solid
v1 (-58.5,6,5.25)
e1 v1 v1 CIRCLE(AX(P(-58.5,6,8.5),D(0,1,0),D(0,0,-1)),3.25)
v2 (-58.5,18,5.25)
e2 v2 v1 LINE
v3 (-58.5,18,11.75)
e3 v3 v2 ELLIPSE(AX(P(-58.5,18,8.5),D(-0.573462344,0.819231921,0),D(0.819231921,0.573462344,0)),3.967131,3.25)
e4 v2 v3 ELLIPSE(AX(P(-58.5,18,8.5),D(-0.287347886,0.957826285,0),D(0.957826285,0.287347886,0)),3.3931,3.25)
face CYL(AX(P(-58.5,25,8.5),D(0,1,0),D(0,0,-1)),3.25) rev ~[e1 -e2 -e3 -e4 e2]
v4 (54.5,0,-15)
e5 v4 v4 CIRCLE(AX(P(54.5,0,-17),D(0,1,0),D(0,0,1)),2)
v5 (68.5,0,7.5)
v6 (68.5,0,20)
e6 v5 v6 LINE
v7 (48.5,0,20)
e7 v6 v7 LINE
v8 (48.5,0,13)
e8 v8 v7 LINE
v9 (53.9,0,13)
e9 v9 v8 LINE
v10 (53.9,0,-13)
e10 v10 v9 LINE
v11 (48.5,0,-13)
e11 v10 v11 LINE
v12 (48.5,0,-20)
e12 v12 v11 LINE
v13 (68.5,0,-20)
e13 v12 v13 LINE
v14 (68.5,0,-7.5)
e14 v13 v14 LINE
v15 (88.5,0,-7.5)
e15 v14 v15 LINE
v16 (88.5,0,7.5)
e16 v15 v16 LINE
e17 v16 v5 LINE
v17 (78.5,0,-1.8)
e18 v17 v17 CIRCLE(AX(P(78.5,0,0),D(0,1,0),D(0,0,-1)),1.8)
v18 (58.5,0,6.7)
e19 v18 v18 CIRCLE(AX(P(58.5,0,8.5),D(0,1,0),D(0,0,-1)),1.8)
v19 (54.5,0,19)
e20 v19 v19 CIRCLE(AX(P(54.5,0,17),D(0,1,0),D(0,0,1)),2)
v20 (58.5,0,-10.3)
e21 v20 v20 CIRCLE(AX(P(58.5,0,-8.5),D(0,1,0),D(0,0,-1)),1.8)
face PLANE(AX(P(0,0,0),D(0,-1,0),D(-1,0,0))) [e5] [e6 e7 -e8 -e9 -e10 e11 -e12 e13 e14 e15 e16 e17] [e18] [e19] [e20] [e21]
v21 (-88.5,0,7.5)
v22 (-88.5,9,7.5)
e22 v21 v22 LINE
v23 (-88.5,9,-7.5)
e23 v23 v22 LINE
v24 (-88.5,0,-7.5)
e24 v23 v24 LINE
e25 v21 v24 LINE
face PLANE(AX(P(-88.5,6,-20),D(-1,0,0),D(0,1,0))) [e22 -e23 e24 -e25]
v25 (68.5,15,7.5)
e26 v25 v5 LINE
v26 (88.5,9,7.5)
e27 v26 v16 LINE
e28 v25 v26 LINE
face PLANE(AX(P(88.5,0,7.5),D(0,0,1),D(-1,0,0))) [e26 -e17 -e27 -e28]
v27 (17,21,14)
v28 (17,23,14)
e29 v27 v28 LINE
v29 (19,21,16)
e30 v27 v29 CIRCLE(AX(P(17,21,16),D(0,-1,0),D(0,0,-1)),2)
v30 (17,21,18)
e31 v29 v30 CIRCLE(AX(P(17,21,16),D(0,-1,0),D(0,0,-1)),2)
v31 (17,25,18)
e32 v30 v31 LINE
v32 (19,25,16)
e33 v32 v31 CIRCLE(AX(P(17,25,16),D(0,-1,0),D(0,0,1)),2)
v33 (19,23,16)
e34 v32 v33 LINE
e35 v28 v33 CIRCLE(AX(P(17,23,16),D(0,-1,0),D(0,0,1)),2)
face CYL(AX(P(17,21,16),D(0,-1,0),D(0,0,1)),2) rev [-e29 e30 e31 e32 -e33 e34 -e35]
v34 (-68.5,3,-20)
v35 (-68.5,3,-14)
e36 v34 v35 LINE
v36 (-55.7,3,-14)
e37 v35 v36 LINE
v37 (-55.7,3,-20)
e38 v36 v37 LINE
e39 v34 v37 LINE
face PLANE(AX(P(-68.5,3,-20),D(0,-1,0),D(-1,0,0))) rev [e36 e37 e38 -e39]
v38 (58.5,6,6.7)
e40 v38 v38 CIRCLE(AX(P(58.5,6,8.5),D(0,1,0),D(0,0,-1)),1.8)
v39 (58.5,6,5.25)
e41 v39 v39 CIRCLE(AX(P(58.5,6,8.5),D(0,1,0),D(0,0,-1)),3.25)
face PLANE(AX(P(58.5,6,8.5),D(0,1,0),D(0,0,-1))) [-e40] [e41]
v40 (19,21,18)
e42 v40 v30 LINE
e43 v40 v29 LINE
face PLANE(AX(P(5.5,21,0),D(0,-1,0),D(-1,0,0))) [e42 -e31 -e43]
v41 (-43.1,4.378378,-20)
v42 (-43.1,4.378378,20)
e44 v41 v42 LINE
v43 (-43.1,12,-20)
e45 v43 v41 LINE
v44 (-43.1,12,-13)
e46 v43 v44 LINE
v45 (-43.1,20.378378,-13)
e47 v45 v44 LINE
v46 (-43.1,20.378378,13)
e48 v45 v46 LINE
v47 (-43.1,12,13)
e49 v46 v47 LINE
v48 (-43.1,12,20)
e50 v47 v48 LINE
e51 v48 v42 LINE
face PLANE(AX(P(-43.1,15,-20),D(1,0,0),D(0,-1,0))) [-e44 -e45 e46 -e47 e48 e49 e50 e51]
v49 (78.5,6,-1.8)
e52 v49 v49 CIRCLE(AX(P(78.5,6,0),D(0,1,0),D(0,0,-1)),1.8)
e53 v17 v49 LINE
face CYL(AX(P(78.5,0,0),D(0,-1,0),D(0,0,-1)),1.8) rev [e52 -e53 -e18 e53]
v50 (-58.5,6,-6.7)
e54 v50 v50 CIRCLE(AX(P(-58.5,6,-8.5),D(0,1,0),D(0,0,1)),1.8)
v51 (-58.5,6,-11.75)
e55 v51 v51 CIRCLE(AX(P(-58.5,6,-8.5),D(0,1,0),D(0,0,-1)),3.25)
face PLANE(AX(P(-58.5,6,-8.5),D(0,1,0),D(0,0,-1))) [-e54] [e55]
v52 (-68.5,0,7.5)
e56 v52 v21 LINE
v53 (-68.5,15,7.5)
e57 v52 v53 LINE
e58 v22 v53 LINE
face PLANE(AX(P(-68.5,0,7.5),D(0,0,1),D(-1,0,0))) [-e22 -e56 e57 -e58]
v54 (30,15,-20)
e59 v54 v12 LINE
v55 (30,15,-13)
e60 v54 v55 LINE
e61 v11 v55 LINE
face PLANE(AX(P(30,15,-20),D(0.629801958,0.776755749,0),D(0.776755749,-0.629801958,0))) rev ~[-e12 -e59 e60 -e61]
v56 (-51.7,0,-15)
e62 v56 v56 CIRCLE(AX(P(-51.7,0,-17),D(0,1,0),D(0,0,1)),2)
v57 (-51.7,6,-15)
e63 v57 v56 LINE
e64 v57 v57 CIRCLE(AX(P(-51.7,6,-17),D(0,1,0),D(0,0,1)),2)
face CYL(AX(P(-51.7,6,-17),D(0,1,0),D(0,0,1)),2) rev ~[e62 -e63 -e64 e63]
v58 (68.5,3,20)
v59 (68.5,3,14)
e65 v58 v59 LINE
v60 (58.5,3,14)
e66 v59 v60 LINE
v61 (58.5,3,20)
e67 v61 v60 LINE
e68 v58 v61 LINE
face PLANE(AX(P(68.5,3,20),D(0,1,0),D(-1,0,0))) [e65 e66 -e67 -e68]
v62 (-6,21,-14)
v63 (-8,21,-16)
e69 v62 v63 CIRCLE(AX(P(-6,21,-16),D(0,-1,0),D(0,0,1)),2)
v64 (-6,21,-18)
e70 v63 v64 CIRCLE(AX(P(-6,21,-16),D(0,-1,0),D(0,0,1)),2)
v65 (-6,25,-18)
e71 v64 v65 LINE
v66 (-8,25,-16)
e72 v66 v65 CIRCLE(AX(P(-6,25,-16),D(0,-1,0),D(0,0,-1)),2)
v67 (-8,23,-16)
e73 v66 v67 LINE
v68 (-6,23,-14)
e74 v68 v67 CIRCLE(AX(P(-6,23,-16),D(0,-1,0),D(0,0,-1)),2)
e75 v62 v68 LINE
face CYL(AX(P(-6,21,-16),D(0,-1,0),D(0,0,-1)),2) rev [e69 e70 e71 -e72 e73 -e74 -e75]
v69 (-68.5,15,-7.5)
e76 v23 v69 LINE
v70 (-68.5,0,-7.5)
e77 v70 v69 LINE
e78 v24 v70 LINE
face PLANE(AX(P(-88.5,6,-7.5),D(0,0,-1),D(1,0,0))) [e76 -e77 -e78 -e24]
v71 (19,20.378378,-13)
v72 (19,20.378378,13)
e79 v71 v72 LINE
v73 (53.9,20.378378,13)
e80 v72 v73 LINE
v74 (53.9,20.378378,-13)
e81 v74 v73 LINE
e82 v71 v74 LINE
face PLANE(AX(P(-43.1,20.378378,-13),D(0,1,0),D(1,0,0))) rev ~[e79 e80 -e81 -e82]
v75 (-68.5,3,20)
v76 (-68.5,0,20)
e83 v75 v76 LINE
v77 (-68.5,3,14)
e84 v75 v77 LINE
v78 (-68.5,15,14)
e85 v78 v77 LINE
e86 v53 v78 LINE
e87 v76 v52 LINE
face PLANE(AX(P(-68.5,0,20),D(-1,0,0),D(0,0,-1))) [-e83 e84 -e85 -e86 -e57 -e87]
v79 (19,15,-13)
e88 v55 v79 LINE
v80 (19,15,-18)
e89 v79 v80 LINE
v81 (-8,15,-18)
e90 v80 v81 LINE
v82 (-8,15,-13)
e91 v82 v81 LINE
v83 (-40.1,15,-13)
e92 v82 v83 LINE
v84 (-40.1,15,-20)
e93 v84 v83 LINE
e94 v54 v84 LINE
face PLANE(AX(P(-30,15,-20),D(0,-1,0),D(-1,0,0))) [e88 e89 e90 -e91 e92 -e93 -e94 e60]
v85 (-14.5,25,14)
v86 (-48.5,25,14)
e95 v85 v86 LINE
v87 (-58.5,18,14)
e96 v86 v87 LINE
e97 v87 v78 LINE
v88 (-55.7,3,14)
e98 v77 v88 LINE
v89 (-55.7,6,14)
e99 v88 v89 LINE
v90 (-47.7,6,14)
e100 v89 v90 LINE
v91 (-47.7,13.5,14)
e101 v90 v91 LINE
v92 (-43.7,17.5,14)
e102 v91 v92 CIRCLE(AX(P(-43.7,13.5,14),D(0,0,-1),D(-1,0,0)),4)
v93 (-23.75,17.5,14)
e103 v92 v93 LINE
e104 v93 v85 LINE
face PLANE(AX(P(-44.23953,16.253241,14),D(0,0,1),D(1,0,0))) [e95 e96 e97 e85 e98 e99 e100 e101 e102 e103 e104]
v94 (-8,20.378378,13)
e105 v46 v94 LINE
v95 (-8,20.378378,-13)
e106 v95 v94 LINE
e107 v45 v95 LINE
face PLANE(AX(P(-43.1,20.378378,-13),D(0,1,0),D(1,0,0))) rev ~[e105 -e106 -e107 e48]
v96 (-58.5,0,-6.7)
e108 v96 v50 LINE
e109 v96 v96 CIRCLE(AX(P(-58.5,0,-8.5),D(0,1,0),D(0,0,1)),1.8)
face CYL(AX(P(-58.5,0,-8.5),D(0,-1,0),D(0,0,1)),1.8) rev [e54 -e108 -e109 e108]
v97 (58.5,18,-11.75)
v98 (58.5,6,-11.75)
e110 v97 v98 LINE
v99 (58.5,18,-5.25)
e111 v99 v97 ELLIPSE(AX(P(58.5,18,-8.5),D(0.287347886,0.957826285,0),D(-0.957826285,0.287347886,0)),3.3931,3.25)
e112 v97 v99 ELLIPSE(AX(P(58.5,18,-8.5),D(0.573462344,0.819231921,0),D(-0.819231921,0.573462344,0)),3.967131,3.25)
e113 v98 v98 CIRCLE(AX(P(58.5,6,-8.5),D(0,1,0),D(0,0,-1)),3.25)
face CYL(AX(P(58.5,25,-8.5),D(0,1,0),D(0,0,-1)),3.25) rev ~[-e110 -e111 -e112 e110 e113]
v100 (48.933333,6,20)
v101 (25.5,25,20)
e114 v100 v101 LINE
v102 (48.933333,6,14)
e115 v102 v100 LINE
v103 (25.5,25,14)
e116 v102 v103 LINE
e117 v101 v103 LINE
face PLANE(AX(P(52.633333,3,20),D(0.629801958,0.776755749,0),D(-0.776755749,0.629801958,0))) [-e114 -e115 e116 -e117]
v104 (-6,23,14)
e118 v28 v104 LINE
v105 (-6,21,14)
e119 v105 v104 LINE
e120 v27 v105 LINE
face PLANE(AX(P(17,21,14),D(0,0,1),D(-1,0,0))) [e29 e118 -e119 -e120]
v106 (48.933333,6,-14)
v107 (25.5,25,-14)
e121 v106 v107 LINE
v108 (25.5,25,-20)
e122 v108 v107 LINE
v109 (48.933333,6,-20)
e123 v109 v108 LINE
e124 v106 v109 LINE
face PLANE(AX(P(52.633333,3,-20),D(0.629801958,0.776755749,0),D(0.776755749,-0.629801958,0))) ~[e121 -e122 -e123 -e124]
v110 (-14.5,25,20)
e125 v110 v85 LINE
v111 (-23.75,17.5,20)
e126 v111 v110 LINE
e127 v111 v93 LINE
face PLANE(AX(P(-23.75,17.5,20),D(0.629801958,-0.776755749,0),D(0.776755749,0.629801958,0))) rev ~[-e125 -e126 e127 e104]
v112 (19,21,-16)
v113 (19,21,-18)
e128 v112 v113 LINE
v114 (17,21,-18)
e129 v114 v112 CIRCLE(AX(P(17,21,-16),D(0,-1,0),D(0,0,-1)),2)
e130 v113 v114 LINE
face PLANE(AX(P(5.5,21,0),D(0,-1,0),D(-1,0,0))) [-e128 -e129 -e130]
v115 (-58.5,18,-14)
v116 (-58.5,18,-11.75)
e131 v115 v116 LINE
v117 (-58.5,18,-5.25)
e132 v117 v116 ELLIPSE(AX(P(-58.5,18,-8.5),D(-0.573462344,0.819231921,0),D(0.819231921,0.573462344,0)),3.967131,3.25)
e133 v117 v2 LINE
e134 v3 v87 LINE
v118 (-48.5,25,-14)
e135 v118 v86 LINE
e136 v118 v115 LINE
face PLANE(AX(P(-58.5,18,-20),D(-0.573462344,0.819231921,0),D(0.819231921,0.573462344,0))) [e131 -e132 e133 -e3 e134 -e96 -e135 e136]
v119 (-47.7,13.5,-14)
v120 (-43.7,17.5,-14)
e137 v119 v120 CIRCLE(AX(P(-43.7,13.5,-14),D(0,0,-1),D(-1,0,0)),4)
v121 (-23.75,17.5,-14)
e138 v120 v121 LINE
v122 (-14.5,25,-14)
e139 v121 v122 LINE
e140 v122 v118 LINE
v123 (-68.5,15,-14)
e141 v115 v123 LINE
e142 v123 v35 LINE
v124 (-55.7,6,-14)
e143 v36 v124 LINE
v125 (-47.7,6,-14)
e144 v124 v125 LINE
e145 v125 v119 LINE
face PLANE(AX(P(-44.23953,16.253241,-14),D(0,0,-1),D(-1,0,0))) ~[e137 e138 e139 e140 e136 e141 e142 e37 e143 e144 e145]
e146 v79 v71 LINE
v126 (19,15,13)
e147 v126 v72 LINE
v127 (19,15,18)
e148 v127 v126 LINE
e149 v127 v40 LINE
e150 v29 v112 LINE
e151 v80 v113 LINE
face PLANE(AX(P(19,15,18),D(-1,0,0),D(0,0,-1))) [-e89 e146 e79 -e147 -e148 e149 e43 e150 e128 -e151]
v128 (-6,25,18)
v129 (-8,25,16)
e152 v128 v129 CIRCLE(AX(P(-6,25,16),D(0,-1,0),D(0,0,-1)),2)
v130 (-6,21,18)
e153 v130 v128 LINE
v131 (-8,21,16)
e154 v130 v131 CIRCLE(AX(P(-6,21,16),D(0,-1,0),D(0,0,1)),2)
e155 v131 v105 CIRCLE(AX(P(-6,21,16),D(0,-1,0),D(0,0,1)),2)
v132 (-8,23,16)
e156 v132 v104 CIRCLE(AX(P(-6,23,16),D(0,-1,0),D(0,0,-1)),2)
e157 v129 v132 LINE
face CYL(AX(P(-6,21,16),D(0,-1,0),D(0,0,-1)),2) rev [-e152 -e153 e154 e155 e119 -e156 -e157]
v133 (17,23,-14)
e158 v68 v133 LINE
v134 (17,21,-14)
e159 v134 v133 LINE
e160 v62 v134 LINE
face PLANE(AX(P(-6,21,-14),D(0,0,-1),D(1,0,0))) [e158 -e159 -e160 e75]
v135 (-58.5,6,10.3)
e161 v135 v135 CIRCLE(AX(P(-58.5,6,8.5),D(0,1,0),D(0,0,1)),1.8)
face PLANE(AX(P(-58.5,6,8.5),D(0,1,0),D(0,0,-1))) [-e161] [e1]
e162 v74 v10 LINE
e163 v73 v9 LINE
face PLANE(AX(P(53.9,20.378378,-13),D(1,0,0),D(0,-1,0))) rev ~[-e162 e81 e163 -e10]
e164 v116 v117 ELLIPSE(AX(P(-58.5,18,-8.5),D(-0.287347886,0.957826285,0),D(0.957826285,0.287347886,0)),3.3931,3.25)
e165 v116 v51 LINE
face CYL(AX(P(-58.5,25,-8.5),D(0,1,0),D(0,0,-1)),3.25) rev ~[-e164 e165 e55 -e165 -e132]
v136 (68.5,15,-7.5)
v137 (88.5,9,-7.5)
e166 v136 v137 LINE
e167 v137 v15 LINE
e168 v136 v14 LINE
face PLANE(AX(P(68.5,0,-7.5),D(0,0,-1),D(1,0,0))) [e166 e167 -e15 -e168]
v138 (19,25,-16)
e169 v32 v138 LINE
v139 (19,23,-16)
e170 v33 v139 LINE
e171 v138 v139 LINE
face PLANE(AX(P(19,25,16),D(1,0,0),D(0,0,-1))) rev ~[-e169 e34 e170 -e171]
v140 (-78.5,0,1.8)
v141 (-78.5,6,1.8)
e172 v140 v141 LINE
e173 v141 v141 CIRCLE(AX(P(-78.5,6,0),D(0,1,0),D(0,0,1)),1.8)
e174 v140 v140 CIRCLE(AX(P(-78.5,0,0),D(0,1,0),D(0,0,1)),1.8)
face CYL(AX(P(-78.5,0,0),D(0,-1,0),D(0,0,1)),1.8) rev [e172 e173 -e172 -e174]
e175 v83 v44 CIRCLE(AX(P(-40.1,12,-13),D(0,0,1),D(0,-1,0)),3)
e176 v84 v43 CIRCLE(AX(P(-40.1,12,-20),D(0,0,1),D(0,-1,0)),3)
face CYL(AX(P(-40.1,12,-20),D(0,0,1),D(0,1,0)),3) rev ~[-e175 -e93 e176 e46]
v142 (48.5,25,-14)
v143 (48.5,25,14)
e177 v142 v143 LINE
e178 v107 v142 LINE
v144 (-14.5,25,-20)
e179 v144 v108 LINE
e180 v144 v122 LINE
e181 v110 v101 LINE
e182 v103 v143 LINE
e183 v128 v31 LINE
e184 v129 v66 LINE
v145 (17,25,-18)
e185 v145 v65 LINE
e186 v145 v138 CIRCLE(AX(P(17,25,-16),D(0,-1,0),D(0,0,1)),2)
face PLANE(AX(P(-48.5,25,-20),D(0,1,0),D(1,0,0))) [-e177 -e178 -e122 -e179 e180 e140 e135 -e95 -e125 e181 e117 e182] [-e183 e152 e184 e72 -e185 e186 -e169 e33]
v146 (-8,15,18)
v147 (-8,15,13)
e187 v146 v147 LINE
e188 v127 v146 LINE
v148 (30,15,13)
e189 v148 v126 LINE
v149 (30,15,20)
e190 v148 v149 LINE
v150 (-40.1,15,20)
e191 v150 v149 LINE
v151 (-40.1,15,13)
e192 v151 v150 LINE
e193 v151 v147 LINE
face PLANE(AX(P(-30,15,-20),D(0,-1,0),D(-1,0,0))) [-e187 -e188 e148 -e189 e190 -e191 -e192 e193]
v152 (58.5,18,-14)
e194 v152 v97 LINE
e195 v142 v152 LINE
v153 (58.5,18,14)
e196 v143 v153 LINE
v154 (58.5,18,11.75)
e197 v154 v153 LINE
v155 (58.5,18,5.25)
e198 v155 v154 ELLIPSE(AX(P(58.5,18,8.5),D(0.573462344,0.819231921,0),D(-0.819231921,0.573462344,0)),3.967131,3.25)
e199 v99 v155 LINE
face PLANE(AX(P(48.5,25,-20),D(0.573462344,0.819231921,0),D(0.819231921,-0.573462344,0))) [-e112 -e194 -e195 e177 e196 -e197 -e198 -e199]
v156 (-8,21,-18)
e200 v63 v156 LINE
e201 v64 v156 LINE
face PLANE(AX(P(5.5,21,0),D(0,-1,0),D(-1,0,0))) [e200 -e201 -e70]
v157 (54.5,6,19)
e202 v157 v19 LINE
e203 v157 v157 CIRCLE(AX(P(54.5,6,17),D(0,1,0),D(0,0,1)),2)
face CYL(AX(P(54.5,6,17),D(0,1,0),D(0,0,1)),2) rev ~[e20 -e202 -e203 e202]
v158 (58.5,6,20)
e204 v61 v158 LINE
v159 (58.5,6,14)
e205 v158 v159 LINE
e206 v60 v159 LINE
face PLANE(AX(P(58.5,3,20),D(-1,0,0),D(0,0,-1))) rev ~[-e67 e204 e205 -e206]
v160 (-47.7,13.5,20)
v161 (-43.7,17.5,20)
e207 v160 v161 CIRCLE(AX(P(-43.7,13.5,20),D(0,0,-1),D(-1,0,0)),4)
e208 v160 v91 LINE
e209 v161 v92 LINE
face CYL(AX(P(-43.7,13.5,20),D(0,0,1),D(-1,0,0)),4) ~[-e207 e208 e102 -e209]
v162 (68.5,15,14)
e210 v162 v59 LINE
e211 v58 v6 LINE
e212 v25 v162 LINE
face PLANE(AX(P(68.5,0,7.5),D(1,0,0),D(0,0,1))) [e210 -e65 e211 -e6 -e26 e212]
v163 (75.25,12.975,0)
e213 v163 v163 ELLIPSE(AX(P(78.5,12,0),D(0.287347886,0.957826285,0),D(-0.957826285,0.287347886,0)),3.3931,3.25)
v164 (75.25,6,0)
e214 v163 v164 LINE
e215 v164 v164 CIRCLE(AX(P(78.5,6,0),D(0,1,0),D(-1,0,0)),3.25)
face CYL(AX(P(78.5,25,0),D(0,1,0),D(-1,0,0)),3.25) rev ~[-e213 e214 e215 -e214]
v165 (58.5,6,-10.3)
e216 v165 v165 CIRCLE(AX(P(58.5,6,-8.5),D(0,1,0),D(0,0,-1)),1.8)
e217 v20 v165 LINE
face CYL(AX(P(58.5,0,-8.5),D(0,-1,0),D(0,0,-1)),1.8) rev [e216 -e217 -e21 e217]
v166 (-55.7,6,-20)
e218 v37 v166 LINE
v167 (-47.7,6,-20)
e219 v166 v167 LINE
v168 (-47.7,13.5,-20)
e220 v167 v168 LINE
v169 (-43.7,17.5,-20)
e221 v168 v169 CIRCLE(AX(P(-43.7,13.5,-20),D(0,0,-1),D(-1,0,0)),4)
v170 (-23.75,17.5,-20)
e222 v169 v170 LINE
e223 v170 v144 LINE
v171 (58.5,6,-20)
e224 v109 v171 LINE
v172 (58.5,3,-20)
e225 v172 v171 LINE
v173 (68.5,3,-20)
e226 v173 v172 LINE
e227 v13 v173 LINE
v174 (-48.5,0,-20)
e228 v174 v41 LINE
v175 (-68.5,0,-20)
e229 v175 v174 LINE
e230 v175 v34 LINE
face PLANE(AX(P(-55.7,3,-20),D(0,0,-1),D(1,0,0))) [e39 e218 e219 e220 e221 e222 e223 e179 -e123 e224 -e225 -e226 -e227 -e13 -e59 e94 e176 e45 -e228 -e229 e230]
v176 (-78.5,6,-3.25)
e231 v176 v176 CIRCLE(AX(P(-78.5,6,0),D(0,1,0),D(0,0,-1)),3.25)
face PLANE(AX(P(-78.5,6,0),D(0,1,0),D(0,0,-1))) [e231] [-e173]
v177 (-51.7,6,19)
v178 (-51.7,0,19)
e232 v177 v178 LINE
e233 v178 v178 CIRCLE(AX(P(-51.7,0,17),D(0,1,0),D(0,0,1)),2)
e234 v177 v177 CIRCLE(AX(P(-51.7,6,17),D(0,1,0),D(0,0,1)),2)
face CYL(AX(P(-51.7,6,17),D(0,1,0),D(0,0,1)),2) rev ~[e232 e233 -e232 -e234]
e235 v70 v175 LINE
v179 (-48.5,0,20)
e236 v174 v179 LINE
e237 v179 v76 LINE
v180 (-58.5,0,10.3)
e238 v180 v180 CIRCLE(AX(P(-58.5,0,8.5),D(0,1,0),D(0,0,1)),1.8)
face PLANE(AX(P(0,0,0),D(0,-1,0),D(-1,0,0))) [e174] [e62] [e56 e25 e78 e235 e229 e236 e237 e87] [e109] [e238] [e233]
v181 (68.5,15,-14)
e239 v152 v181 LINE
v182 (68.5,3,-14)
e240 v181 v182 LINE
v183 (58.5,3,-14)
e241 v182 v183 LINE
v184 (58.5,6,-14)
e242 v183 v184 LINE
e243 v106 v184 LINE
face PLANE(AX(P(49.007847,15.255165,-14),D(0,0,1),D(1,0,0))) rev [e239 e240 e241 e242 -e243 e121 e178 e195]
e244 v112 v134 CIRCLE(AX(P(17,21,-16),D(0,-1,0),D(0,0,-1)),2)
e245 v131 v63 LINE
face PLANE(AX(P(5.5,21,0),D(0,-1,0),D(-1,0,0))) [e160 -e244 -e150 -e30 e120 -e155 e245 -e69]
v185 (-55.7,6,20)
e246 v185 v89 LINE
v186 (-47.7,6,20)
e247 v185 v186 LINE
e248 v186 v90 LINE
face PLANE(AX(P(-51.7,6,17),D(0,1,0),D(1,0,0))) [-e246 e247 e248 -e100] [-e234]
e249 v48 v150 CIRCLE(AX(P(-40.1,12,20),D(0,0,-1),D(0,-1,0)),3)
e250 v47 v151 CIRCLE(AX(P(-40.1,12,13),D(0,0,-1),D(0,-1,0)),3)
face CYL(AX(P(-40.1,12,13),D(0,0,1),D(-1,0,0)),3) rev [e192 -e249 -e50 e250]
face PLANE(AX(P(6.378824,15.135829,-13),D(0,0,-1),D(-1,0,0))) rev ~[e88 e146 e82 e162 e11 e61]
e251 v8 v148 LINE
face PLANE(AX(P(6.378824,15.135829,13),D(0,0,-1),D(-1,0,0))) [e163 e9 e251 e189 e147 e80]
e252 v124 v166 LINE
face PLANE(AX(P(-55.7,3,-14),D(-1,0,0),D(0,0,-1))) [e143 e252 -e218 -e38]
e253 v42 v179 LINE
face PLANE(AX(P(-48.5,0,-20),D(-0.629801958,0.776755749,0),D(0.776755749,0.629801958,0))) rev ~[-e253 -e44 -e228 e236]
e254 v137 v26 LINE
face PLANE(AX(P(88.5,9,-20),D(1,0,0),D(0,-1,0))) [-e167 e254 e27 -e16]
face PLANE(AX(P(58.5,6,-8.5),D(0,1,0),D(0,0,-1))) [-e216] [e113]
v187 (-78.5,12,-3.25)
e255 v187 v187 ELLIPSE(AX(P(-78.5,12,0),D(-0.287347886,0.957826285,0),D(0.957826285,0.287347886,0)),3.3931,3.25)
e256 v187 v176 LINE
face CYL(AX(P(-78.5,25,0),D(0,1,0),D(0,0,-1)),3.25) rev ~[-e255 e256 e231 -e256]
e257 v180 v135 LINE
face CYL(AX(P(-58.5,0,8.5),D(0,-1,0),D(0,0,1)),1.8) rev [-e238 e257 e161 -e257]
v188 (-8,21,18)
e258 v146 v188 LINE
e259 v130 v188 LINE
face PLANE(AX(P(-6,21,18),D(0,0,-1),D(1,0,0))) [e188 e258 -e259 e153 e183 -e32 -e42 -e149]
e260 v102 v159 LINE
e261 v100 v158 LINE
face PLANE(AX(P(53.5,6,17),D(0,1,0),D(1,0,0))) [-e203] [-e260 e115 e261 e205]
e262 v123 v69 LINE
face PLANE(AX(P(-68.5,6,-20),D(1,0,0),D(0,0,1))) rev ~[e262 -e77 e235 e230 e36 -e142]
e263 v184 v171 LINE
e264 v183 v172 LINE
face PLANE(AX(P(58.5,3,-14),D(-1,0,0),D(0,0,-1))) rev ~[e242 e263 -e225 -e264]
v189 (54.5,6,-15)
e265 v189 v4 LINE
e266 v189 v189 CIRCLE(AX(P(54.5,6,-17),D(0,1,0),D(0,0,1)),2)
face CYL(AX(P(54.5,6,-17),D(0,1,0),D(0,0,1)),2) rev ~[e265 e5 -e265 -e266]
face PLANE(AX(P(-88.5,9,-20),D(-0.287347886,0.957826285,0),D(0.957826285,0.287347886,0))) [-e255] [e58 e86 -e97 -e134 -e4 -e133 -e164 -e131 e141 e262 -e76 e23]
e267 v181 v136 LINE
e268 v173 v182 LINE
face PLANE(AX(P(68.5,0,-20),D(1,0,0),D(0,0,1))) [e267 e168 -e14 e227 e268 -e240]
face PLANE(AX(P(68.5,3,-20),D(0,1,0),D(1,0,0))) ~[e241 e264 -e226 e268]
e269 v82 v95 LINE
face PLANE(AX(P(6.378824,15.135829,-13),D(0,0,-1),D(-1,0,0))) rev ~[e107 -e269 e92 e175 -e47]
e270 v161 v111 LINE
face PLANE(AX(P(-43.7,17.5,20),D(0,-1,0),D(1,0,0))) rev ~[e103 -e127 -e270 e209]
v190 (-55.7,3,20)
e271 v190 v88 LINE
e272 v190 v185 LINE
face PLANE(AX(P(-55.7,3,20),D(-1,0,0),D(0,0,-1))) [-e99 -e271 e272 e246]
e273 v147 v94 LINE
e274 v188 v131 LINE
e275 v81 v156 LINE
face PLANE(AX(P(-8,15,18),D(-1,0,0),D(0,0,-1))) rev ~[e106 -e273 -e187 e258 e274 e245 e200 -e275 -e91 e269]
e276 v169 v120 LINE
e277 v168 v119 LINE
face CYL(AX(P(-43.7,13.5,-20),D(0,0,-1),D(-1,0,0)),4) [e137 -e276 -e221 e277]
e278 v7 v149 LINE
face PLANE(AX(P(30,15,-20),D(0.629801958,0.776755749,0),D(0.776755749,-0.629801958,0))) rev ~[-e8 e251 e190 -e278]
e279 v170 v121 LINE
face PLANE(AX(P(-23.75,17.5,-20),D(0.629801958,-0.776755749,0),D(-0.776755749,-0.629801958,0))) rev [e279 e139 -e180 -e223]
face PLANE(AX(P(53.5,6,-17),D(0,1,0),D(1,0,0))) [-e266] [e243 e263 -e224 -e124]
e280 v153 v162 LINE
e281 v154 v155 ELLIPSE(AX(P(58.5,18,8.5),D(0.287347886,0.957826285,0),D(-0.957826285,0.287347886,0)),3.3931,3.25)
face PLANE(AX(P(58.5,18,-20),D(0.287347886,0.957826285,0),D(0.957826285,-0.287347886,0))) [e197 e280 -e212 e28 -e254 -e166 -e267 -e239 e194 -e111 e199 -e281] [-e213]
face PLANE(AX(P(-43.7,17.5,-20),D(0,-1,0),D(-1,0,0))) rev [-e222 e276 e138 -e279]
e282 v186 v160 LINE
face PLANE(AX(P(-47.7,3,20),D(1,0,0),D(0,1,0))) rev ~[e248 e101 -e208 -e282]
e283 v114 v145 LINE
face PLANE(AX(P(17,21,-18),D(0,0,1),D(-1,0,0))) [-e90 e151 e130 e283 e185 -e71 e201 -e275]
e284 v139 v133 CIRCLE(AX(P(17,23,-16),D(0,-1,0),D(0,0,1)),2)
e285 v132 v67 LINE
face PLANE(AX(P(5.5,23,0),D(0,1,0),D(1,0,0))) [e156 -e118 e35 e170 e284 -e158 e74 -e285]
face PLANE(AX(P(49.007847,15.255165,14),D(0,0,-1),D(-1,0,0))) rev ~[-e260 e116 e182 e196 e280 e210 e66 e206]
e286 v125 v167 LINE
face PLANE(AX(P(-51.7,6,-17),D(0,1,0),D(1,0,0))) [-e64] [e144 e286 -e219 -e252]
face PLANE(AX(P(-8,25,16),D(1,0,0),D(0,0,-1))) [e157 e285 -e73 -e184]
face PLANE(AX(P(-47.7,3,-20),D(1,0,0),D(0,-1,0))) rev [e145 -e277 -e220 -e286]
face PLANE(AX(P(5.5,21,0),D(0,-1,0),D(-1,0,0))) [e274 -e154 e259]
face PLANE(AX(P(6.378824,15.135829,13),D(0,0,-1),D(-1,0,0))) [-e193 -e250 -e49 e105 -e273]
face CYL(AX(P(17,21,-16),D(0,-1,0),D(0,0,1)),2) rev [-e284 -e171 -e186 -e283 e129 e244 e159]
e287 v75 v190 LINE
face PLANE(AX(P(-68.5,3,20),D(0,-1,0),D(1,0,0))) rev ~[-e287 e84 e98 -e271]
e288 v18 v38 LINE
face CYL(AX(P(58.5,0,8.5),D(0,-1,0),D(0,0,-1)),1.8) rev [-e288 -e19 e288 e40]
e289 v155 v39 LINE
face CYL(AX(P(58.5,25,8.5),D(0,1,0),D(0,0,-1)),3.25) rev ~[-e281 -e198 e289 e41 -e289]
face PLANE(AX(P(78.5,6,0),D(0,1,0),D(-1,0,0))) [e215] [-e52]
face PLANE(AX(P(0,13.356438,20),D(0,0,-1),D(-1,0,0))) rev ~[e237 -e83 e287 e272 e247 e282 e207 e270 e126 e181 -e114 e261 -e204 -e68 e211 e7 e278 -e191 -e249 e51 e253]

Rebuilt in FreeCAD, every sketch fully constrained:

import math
import FreeCAD as App
import Part
import Sketcher
from FreeCAD import Vector


def edges_at(feature, points):
    """Names of the edges that pass closest to the given points."""
    edges = feature.Shape.Edges
    near = lambda p: min(range(len(edges)), key=lambda i: edges[i].distToShape(Part.Vertex(*p))[0])
    return sorted({f"Edge{near(p) + 1}" for p in points})


def add_polygon(sketch, points):
    """Adds a closed chain of lines whose ends are joined by coincident constraints."""
    first, n = sketch.GeometryCount, len(points)
    for a, b in zip(points, points[1:] + points[:1]):
        sketch.addGeometry(Part.LineSegment(App.Vector(*a, 0), App.Vector(*b, 0)), False)
    for i in range(n):
        sketch.addConstraint(Sketcher.Constraint("Coincident", first + i, 2, first + (i + 1) % n, 1))

doc = App.newDocument("Part")
body = doc.addObject("PartDesign::Body", "Body")

# Sketch on XZ plane
sketch1 = doc.addObject("Sketcher::SketchObject", "Sketch")
body.addObject(sketch1)
sketch1.AttachmentSupport = (doc.XZ_Plane, [""])
sketch1.MapMode = "FlatFace"
add_polygon(sketch1, [(68.5, -7.5), (68.5, -20), (-68.5, -20), (-68.5, -7.5), (-88.5, -7.5), (-88.5, 7.5), (-68.5, 7.5), (-68.5, 20), (68.5, 20), (68.5, 7.5), (88.5, 7.5), (88.5, -7.5)])  # lines 0-11
sketch1.addGeometry(Part.Circle(Vector(58.5, 8.5, 0), Vector(0, 0, 1), 1.8), False)  # 12
sketch1.addGeometry(Part.Circle(Vector(-58.5, 8.5, 0), Vector(0, 0, 1), 1.8), False)  # 13
sketch1.addGeometry(Part.Circle(Vector(78.5, 0, 0), Vector(0, 0, 1), 1.8), False)  # 14
sketch1.addGeometry(Part.Circle(Vector(58.5, -8.5, 0), Vector(0, 0, 1), 1.8), False)  # 15
sketch1.addGeometry(Part.Circle(Vector(-78.5, 0, 0), Vector(0, 0, 1), 1.8), False)  # 16
sketch1.addGeometry(Part.Circle(Vector(-58.5, -8.5, 0), Vector(0, 0, 1), 1.8), False)  # 17
sketch1.addConstraint(Sketcher.Constraint("Vertical", 0))
sketch1.addConstraint(Sketcher.Constraint("Horizontal", 1))
sketch1.addConstraint(Sketcher.Constraint("Vertical", 2))
sketch1.addConstraint(Sketcher.Constraint("Horizontal", 3))
sketch1.addConstraint(Sketcher.Constraint("Vertical", 4))
sketch1.addConstraint(Sketcher.Constraint("Horizontal", 5))
sketch1.addConstraint(Sketcher.Constraint("Vertical", 6))
sketch1.addConstraint(Sketcher.Constraint("Horizontal", 7))
sketch1.addConstraint(Sketcher.Constraint("Vertical", 8))
sketch1.addConstraint(Sketcher.Constraint("Horizontal", 9))
sketch1.addConstraint(Sketcher.Constraint("Vertical", 10))
sketch1.addConstraint(Sketcher.Constraint("Horizontal", 11))
sketch1.addConstraint(Sketcher.Constraint("Equal", 12, 13))
sketch1.addConstraint(Sketcher.Constraint("Equal", 13, 14))
sketch1.addConstraint(Sketcher.Constraint("Equal", 14, 15))
sketch1.addConstraint(Sketcher.Constraint("Equal", 15, 16))
sketch1.addConstraint(Sketcher.Constraint("Equal", 16, 17))
sketch1.addConstraint(Sketcher.Constraint("Symmetric", 13, 3, 15, 3, -1, 1))
sketch1.addConstraint(Sketcher.Constraint("Symmetric", 14, 3, 16, 3, -1, 1))
sketch1.addConstraint(Sketcher.Constraint("Symmetric", 12, 3, 17, 3, -1, 1))
sketch1.addConstraint(Sketcher.Constraint("Symmetric", 0, 2, 6, 2, -1, 1))
sketch1.addConstraint(Sketcher.Constraint("Symmetric", 2, 2, 8, 2, -1, 1))
sketch1.addConstraint(Sketcher.Constraint("Symmetric", 4, 2, 10, 2, -1, 1))
sketch1.addConstraint(Sketcher.Constraint("Symmetric", 12, 3, 13, 3, -2))
sketch1.addConstraint(Sketcher.Constraint("Symmetric", 5, 2, 8, 2, -2))
sketch1.addConstraint(Sketcher.Constraint("PointOnObject", 14, 3, -1))
sketch1.addConstraint(Sketcher.Constraint("Diameter", 12, 3.6))
sketch1.addConstraint(Sketcher.Constraint("DistanceX", 1, 2, 1, 1, 137.0))
sketch1.addConstraint(Sketcher.Constraint("DistanceX", 3, 2, 3, 1, 20.0))
sketch1.addConstraint(Sketcher.Constraint("DistanceY", 4, 1, 4, 2, 15.0))
sketch1.addConstraint(Sketcher.Constraint("DistanceY", 0, 2, 0, 1, 12.5))
sketch1.addConstraint(Sketcher.Constraint("DistanceX", 13, 3, 12, 3, 117.0))
sketch1.addConstraint(Sketcher.Constraint("DistanceX", 12, 3, 14, 3, 20.0))
sketch1.addConstraint(Sketcher.Constraint("DistanceY", 15, 3, 12, 3, 17.0))
pad1 = doc.addObject("PartDesign::Pad", "Pad")
body.addObject(pad1)
pad1.Profile = sketch1
pad1.Length = 6
pad1.Reversed = True

# Sketch on XY plane
sketch2 = doc.addObject("Sketcher::SketchObject", "Sketch001")
body.addObject(sketch2)
sketch2.AttachmentSupport = (doc.XY_Plane, [""])
sketch2.MapMode = "FlatFace"
sketch2.AttachmentOffset = App.Placement(Vector(0, 0, -20), App.Rotation())
add_polygon(sketch2, [(88.5, 6), (-88.5, 6), (-88.5, 9), (-58.5, 18), (-48.5, 25), (48.5, 25), (58.5, 18), (88.5, 9)])  # lines 0-7
sketch2.addConstraint(Sketcher.Constraint("Horizontal", 0))
sketch2.addConstraint(Sketcher.Constraint("Vertical", 1))
sketch2.addConstraint(Sketcher.Constraint("Horizontal", 4))
sketch2.addConstraint(Sketcher.Constraint("Vertical", 7))
sketch2.addConstraint(Sketcher.Constraint("Symmetric", 2, 2, 5, 2, -2))
sketch2.addConstraint(Sketcher.Constraint("Symmetric", 1, 2, 6, 2, -2))
sketch2.addConstraint(Sketcher.Constraint("Equal", 3, 5))
sketch2.addConstraint(Sketcher.Constraint("DistanceX", 0, 2, 0, 1, 177.0))
sketch2.addConstraint(Sketcher.Constraint("DistanceX", 4, 1, 4, 2, 97.0))
sketch2.addConstraint(Sketcher.Constraint("DistanceY", 1, 1, 1, 2, 3.0))
sketch2.addConstraint(Sketcher.Constraint("DistanceY", -1, 1, 0, 2, 6.0))
sketch2.addConstraint(Sketcher.Constraint("DistanceY", -1, 1, 2, 2, 18.0))
sketch2.addConstraint(Sketcher.Constraint("DistanceY", -1, 1, 3, 2, 25.0))
sketch2.addConstraint(Sketcher.Constraint("DistanceX", 1, 2, 2, 2, 30.0))
pad2 = doc.addObject("PartDesign::Pad", "Pad001")
body.addObject(pad2)
pad2.Profile = sketch2
pad2.Length = 40

# Sketch on XZ plane
sketch3 = doc.addObject("Sketcher::SketchObject", "Sketch002")
body.addObject(sketch3)
sketch3.AttachmentSupport = (doc.XZ_Plane, [""])
sketch3.MapMode = "FlatFace"
sketch3.AttachmentOffset = App.Placement(Vector(0, 0, -6), App.Rotation())
add_polygon(sketch3, [(-88, 20), (-88, 8), (-68, 8), (-68, 20)])  # lines 0-3
sketch3.addConstraint(Sketcher.Constraint("Vertical", 0))
sketch3.addConstraint(Sketcher.Constraint("Horizontal", 1))
sketch3.addConstraint(Sketcher.Constraint("Vertical", 2))
sketch3.addConstraint(Sketcher.Constraint("Horizontal", 3))
sketch3.addConstraint(Sketcher.Constraint("DistanceX", 1, 1, 1, 2, 20.0))
sketch3.addConstraint(Sketcher.Constraint("DistanceY", 0, 2, 0, 1, 12.5))
sketch3.addConstraint(Sketcher.Constraint("DistanceY", -1, 1, 2, 2, 20.0))
sketch3.addConstraint(Sketcher.Constraint("DistanceX", 0, 2, -1, 1, 88.5))
pocket1 = doc.addObject("PartDesign::Pocket", "Pocket")
body.addObject(pocket1)
pocket1.Profile = sketch3
pocket1.Type = "UpToFirst"

# Sketch on XZ plane
sketch4 = doc.addObject("Sketcher::SketchObject", "Sketch003")
body.addObject(sketch4)
sketch4.AttachmentSupport = (doc.XZ_Plane, [""])
sketch4.MapMode = "FlatFace"
sketch4.AttachmentOffset = App.Placement(Vector(0, 0, -6), App.Rotation())
add_polygon(sketch4, [(-88, -8), (-88, -20), (-68, -20), (-68, -8)])  # lines 0-3
sketch4.addConstraint(Sketcher.Constraint("Vertical", 0))
sketch4.addConstraint(Sketcher.Constraint("Horizontal", 1))
sketch4.addConstraint(Sketcher.Constraint("Vertical", 2))
sketch4.addConstraint(Sketcher.Constraint("Horizontal", 3))
sketch4.addConstraint(Sketcher.Constraint("DistanceX", 1, 1, 1, 2, 20.0))
sketch4.addConstraint(Sketcher.Constraint("DistanceY", 0, 2, 0, 1, 12.5))
sketch4.addConstraint(Sketcher.Constraint("DistanceY", 0, 2, -1, 1, 20.0))
sketch4.addConstraint(Sketcher.Constraint("DistanceX", 0, 2, -1, 1, 88.5))
pocket2 = doc.addObject("PartDesign::Pocket", "Pocket001")
body.addObject(pocket2)
pocket2.Profile = sketch4
pocket2.Type = "UpToFirst"

# Sketch on XZ plane
sketch5 = doc.addObject("Sketcher::SketchObject", "Sketch004")
body.addObject(sketch5)
sketch5.AttachmentSupport = (doc.XZ_Plane, [""])
sketch5.MapMode = "FlatFace"
sketch5.AttachmentOffset = App.Placement(Vector(0, 0, -6), App.Rotation())
add_polygon(sketch5, [(68, 20), (68, 8), (88, 8), (88, 20)])  # lines 0-3
sketch5.addConstraint(Sketcher.Constraint("Vertical", 0))
sketch5.addConstraint(Sketcher.Constraint("Horizontal", 1))
sketch5.addConstraint(Sketcher.Constraint("Vertical", 2))
sketch5.addConstraint(Sketcher.Constraint("Horizontal", 3))
sketch5.addConstraint(Sketcher.Constraint("DistanceX", 1, 1, 1, 2, 20.0))
sketch5.addConstraint(Sketcher.Constraint("DistanceY", 0, 2, 0, 1, 12.5))
sketch5.addConstraint(Sketcher.Constraint("DistanceY", -1, 1, 2, 2, 20.0))
sketch5.addConstraint(Sketcher.Constraint("DistanceX", -1, 1, 0, 2, 68.5))
pocket3 = doc.addObject("PartDesign::Pocket", "Pocket002")
body.addObject(pocket3)
pocket3.Profile = sketch5
pocket3.Type = "UpToFirst"

# Sketch on XZ plane
sketch6 = doc.addObject("Sketcher::SketchObject", "Sketch005")
body.addObject(sketch6)
sketch6.AttachmentSupport = (doc.XZ_Plane, [""])
sketch6.MapMode = "FlatFace"
sketch6.AttachmentOffset = App.Placement(Vector(0, 0, -6), App.Rotation())
add_polygon(sketch6, [(68, -8), (68, -20), (88, -20), (88, -8)])  # lines 0-3
sketch6.addConstraint(Sketcher.Constraint("Vertical", 0))
sketch6.addConstraint(Sketcher.Constraint("Horizontal", 1))
sketch6.addConstraint(Sketcher.Constraint("Vertical", 2))
sketch6.addConstraint(Sketcher.Constraint("Horizontal", 3))
sketch6.addConstraint(Sketcher.Constraint("DistanceX", 1, 1, 1, 2, 20.0))
sketch6.addConstraint(Sketcher.Constraint("DistanceY", 0, 2, 0, 1, 12.5))
sketch6.addConstraint(Sketcher.Constraint("DistanceY", 0, 2, -1, 1, 20.0))
sketch6.addConstraint(Sketcher.Constraint("DistanceX", -1, 1, 0, 2, 68.5))
pocket4 = doc.addObject("PartDesign::Pocket", "Pocket003")
body.addObject(pocket4)
pocket4.Profile = sketch6
pocket4.Type = "UpToFirst"

# Sketch on XZ plane
sketch7 = doc.addObject("Sketcher::SketchObject", "Sketch006")
body.addObject(sketch7)
sketch7.AttachmentSupport = (doc.XZ_Plane, [""])
sketch7.MapMode = "FlatFace"
sketch7.AttachmentOffset = App.Placement(Vector(0, 0, -25), App.Rotation())
sketch7.addGeometry(Part.Circle(Vector(-58.5, -8.5, 0), Vector(0, 0, 1), 3.2), False)
sketch7.addGeometry(Part.Circle(Vector(-78.5, 0, 0), Vector(0, 0, 1), 3.2), False)
sketch7.addGeometry(Part.Circle(Vector(-58.5, 8.5, 0), Vector(0, 0, 1), 3.2), False)
sketch7.addGeometry(Part.Circle(Vector(58.5, -8.5, 0), Vector(0, 0, 1), 3.2), False)
sketch7.addGeometry(Part.Circle(Vector(58.5, 8.5, 0), Vector(0, 0, 1), 3.2), False)
sketch7.addGeometry(Part.Circle(Vector(78.5, 0, 0), Vector(0, 0, 1), 3.2), False)
sketch7.addConstraint(Sketcher.Constraint("Equal", 0, 1))
sketch7.addConstraint(Sketcher.Constraint("Equal", 1, 2))
sketch7.addConstraint(Sketcher.Constraint("Equal", 2, 3))
sketch7.addConstraint(Sketcher.Constraint("Equal", 3, 4))
sketch7.addConstraint(Sketcher.Constraint("Equal", 4, 5))
sketch7.addConstraint(Sketcher.Constraint("Symmetric", 2, 3, 3, 3, -1, 1))
sketch7.addConstraint(Sketcher.Constraint("Symmetric", 0, 3, 4, 3, -1, 1))
sketch7.addConstraint(Sketcher.Constraint("Symmetric", 1, 3, 5, 3, -1, 1))
sketch7.addConstraint(Sketcher.Constraint("Symmetric", 0, 3, 3, 3, -2))
sketch7.addConstraint(Sketcher.Constraint("PointOnObject", 1, 3, -1))
sketch7.addConstraint(Sketcher.Constraint("Diameter", 0, 6.5))
sketch7.addConstraint(Sketcher.Constraint("DistanceX", 1, 3, 0, 3, 20.0))
sketch7.addConstraint(Sketcher.Constraint("DistanceY", 0, 3, 2, 3, 17.0))
sketch7.addConstraint(Sketcher.Constraint("DistanceX", 0, 3, 3, 3, 117.0))
pocket5 = doc.addObject("PartDesign::Pocket", "Pocket004")
body.addObject(pocket5)
pocket5.Profile = sketch7
pocket5.Length = 19
pocket5.Reversed = True

# Sketch on XY plane
sketch8 = doc.addObject("Sketcher::SketchObject", "Sketch007")
body.addObject(sketch8)
sketch8.AttachmentSupport = (doc.XY_Plane, [""])
sketch8.MapMode = "FlatFace"
sketch8.AttachmentOffset = App.Placement(Vector(0, 0, -20), App.Rotation())
add_polygon(sketch8, [(-48, 0), (-30, 15), (30, 15), (48, 0)])  # lines 0-3
sketch8.addConstraint(Sketcher.Constraint("Horizontal", 1))
sketch8.addConstraint(Sketcher.Constraint("Horizontal", 3))
sketch8.addConstraint(Sketcher.Constraint("Symmetric", 2, 2, 3, 2, -1, 1))
sketch8.addConstraint(Sketcher.Constraint("Equal", 0, 2))
sketch8.addConstraint(Sketcher.Constraint("DistanceX", 1, 1, 1, 2, 60.0))
sketch8.addConstraint(Sketcher.Constraint("DistanceX", 3, 2, 3, 1, 97.0))
sketch8.addConstraint(Sketcher.Constraint("DistanceY", -1, 1, 0, 2, 15.0))
pocket6 = doc.addObject("PartDesign::Pocket", "Pocket005")
body.addObject(pocket6)
pocket6.Profile = sketch8
pocket6.Type = "UpToFirst"
pocket6.Reversed = True

# Sketch on XY plane
sketch9 = doc.addObject("Sketcher::SketchObject", "Sketch008")
body.addObject(sketch9)
sketch9.AttachmentSupport = (doc.XY_Plane, [""])
sketch9.MapMode = "FlatFace"
sketch9.AttachmentOffset = App.Placement(Vector(0, 0, -13), App.Rotation())
add_polygon(sketch9, [(-43, 4), (-43, 20), (54, 20), (54, 0), (48, 0), (30, 15), (-30, 15)])  # lines 0-6
sketch9.addConstraint(Sketcher.Constraint("Vertical", 0))
sketch9.addConstraint(Sketcher.Constraint("Horizontal", 1))
sketch9.addConstraint(Sketcher.Constraint("Vertical", 2))
sketch9.addConstraint(Sketcher.Constraint("Horizontal", 3))
sketch9.addConstraint(Sketcher.Constraint("Horizontal", 5))
sketch9.addConstraint(Sketcher.Constraint("PointOnObject", 2, 2, -1))
sketch9.addConstraint(Sketcher.Constraint("DistanceX", 1, 1, 1, 2, 97.0))
sketch9.addConstraint(Sketcher.Constraint("DistanceX", 5, 2, 5, 1, 60.0))
sketch9.addConstraint(Sketcher.Constraint("DistanceY", 0, 1, 0, 2, 16.0))
sketch9.addConstraint(Sketcher.Constraint("DistanceX", 3, 2, 3, 1, 5.4))
sketch9.addConstraint(Sketcher.Constraint("DistanceX", -1, 1, 4, 2, 30.0))
sketch9.addConstraint(Sketcher.Constraint("DistanceY", -1, 1, 4, 2, 15.0))
sketch9.addConstraint(Sketcher.Constraint("DistanceX", 0, 2, -1, 1, 43.1))
sketch9.addConstraint(Sketcher.Constraint("DistanceY", 2, 2, 2, 1, 20.378378))
pocket7 = doc.addObject("PartDesign::Pocket", "Pocket006")
body.addObject(pocket7)
pocket7.Profile = sketch9
pocket7.Length = 26
pocket7.Reversed = True

# Sketch on XZ plane
sketch10 = doc.addObject("Sketcher::SketchObject", "Sketch009")
body.addObject(sketch10)
sketch10.AttachmentSupport = (doc.XZ_Plane, [""])
sketch10.MapMode = "FlatFace"
sketch10.AttachmentOffset = App.Placement(Vector(0, 0, -15), App.Rotation())
add_polygon(sketch10, [(19, -18), (19, 18), (-8, 18), (-8, -18)])  # lines 0-3
sketch10.addConstraint(Sketcher.Constraint("Vertical", 0))
sketch10.addConstraint(Sketcher.Constraint("Horizontal", 1))
sketch10.addConstraint(Sketcher.Constraint("Vertical", 2))
sketch10.addConstraint(Sketcher.Constraint("Horizontal", 3))
sketch10.addConstraint(Sketcher.Constraint("DistanceX", 1, 2, 1, 1, 27.0))
sketch10.addConstraint(Sketcher.Constraint("DistanceY", 0, 1, 0, 2, 36.0))
sketch10.addConstraint(Sketcher.Constraint("DistanceX", -1, 1, 0, 2, 19.0))
sketch10.addConstraint(Sketcher.Constraint("DistanceY", -1, 1, 0, 2, 18.0))
pocket8 = doc.addObject("PartDesign::Pocket", "Pocket007")
body.addObject(pocket8)
pocket8.Profile = sketch10
pocket8.Length = 6

# Sketch on XZ plane
sketch11 = doc.addObject("Sketcher::SketchObject", "Sketch010")
body.addObject(sketch11)
sketch11.AttachmentSupport = (doc.XZ_Plane, [""])
sketch11.MapMode = "FlatFace"
sketch11.AttachmentOffset = App.Placement(Vector(0, 0, -21), App.Rotation())
sketch11.addGeometry(Part.LineSegment(Vector(-6, -18, 0), Vector(17, -18, 0)), False)
sketch11.addGeometry(Part.ArcOfCircle(Part.Circle(Vector(17, -16, 0), Vector(0, 0, 1), 2), math.radians(-90), math.radians(90)), False)
sketch11.addGeometry(Part.LineSegment(Vector(17, -14, 0), Vector(-6, -14, 0)), False)
sketch11.addGeometry(Part.ArcOfCircle(Part.Circle(Vector(-6, -16, 0), Vector(0, 0, 1), 2), math.radians(90), math.radians(270)), False)
sketch11.addConstraint(Sketcher.Constraint("Tangent", 0, 2, 1, 1))
sketch11.addConstraint(Sketcher.Constraint("Tangent", 1, 2, 2, 1))
sketch11.addConstraint(Sketcher.Constraint("Tangent", 2, 2, 3, 1))
sketch11.addConstraint(Sketcher.Constraint("Tangent", 3, 2, 0, 1))
sketch11.addConstraint(Sketcher.Constraint("Horizontal", 0))
sketch11.addConstraint(Sketcher.Constraint("Horizontal", 2))
sketch11.addConstraint(Sketcher.Constraint("Radius", 1, 2.0))
sketch11.addConstraint(Sketcher.Constraint("DistanceX", 0, 1, 0, 2, 23.0))
sketch11.addConstraint(Sketcher.Constraint("DistanceX", -1, 1, 1, 3, 17.0))
sketch11.addConstraint(Sketcher.Constraint("DistanceY", 1, 3, -1, 1, 16.0))
pocket9 = doc.addObject("PartDesign::Pocket", "Pocket008")
body.addObject(pocket9)
pocket9.Profile = sketch11
pocket9.Type = "UpToFirst"

# Sketch on XZ plane
sketch12 = doc.addObject("Sketcher::SketchObject", "Sketch011")
body.addObject(sketch12)
sketch12.AttachmentSupport = (doc.XZ_Plane, [""])
sketch12.MapMode = "FlatFace"
sketch12.AttachmentOffset = App.Placement(Vector(0, 0, -21), App.Rotation())
sketch12.addGeometry(Part.LineSegment(Vector(-6, 14, 0), Vector(17, 14, 0)), False)
sketch12.addGeometry(Part.ArcOfCircle(Part.Circle(Vector(17, 16, 0), Vector(0, 0, 1), 2), math.radians(-90), math.radians(90)), False)
sketch12.addGeometry(Part.LineSegment(Vector(17, 18, 0), Vector(-6, 18, 0)), False)
sketch12.addGeometry(Part.ArcOfCircle(Part.Circle(Vector(-6, 16, 0), Vector(0, 0, 1), 2), math.radians(90), math.radians(270)), False)
sketch12.addConstraint(Sketcher.Constraint("Tangent", 0, 2, 1, 1))
sketch12.addConstraint(Sketcher.Constraint("Tangent", 1, 2, 2, 1))
sketch12.addConstraint(Sketcher.Constraint("Tangent", 2, 2, 3, 1))
sketch12.addConstraint(Sketcher.Constraint("Tangent", 3, 2, 0, 1))
sketch12.addConstraint(Sketcher.Constraint("Horizontal", 0))
sketch12.addConstraint(Sketcher.Constraint("Horizontal", 2))
sketch12.addConstraint(Sketcher.Constraint("Radius", 1, 2.0))
sketch12.addConstraint(Sketcher.Constraint("DistanceX", 0, 1, 0, 2, 23.0))
sketch12.addConstraint(Sketcher.Constraint("DistanceX", -1, 1, 1, 3, 17.0))
sketch12.addConstraint(Sketcher.Constraint("DistanceY", -1, 1, 1, 3, 16.0))
pocket10 = doc.addObject("PartDesign::Pocket", "Pocket009")
body.addObject(pocket10)
pocket10.Profile = sketch12
pocket10.Type = "UpToFirst"

# Sketch on XZ plane
sketch13 = doc.addObject("Sketcher::SketchObject", "Sketch012")
body.addObject(sketch13)
sketch13.AttachmentSupport = (doc.XZ_Plane, [""])
sketch13.MapMode = "FlatFace"
sketch13.AttachmentOffset = App.Placement(Vector(0, 0, -25), App.Rotation())
add_polygon(sketch13, [(-8, -16), (-8, 16), (19, 16), (19, -16)])  # lines 0-3
sketch13.addConstraint(Sketcher.Constraint("Vertical", 0))
sketch13.addConstraint(Sketcher.Constraint("Horizontal", 1))
sketch13.addConstraint(Sketcher.Constraint("Vertical", 2))
sketch13.addConstraint(Sketcher.Constraint("Horizontal", 3))
sketch13.addConstraint(Sketcher.Constraint("DistanceX", 1, 1, 1, 2, 27.0))
sketch13.addConstraint(Sketcher.Constraint("DistanceY", 0, 1, 0, 2, 32.0))
sketch13.addConstraint(Sketcher.Constraint("DistanceX", 0, 2, -1, 1, 8.0))
sketch13.addConstraint(Sketcher.Constraint("DistanceY", -1, 1, 0, 2, 16.0))
pocket11 = doc.addObject("PartDesign::Pocket", "Pocket010")
body.addObject(pocket11)
pocket11.Profile = sketch13
pocket11.Length = 2
pocket11.Reversed = True

# Sketch on XY plane
sketch14 = doc.addObject("Sketcher::SketchObject", "Sketch013")
body.addObject(sketch14)
sketch14.AttachmentSupport = (doc.XY_Plane, [""])
sketch14.MapMode = "FlatFace"
sketch14.AttachmentOffset = App.Placement(Vector(0, 0, -20), App.Rotation())
add_polygon(sketch14, [(-30, 15), (-43, 4), (-43, 15)])  # lines 0-2
sketch14.addConstraint(Sketcher.Constraint("Vertical", 1))
sketch14.addConstraint(Sketcher.Constraint("Horizontal", 2))
sketch14.addConstraint(Sketcher.Constraint("DistanceX", 2, 1, 2, 2, 13.1))
sketch14.addConstraint(Sketcher.Constraint("DistanceY", -1, 1, 1, 2, 15.0))
sketch14.addConstraint(Sketcher.Constraint("DistanceX", 2, 2, -1, 1, 30.0))
sketch14.addConstraint(Sketcher.Constraint("DistanceY", 1, 1, 1, 2, 10.621622))
pocket12 = doc.addObject("PartDesign::Pocket", "Pocket011")
body.addObject(pocket12)
pocket12.Profile = sketch14
pocket12.Type = "ThroughAll"
pocket12.Reversed = True
doc.recompute()

fillet = doc.addObject("PartDesign::Fillet", "Fillet")
body.addObject(fillet)
fillet.Base = (pocket12, edges_at(pocket12, [(-43.1, 15, -16.5), (-43.1, 15, 16.5)]))
fillet.Radius = 3

# Sketch on XY plane
sketch15 = doc.addObject("Sketcher::SketchObject", "Sketch014")
body.addObject(sketch15)
sketch15.AttachmentSupport = (doc.XY_Plane, [""])
sketch15.MapMode = "FlatFace"
sketch15.AttachmentOffset = App.Placement(Vector(0, 0, 20), App.Rotation())
add_polygon(sketch15, [(48.5, 25), (25.5, 25), (52.6, 3), (68.5, 3), (68.5, 15), (58.5, 18)])  # lines 0-5
sketch15.addGeometry(Part.LineSegment(Vector(-68.5, 3, 0), Vector(-47.7, 3, 0)), False)  # 6
sketch15.addGeometry(Part.LineSegment(Vector(-47.7, 3, 0), Vector(-47.7, 13.5, 0)), False)  # 7
sketch15.addGeometry(Part.ArcOfCircle(Part.Circle(Vector(-43.7, 13.5, 0), Vector(0, 0, 1), 4), math.radians(90), math.radians(180)), False)  # 8
sketch15.addGeometry(Part.LineSegment(Vector(-43.7, 17.5, 0), Vector(-23.8, 17.5, 0)), False)  # 9
sketch15.addGeometry(Part.LineSegment(Vector(-23.8, 17.5, 0), Vector(-14.5, 25, 0)), False)  # 10
sketch15.addGeometry(Part.LineSegment(Vector(-14.5, 25, 0), Vector(-48.5, 25, 0)), False)  # 11
sketch15.addGeometry(Part.LineSegment(Vector(-48.5, 25, 0), Vector(-58.5, 18, 0)), False)  # 12
sketch15.addGeometry(Part.LineSegment(Vector(-58.5, 18, 0), Vector(-68.5, 15, 0)), False)  # 13
sketch15.addGeometry(Part.LineSegment(Vector(-68.5, 15, 0), Vector(-68.5, 3, 0)), False)  # 14
sketch15.addConstraint(Sketcher.Constraint("Coincident", 6, 2, 7, 1))
sketch15.addConstraint(Sketcher.Constraint("Tangent", 7, 2, 8, 2))
sketch15.addConstraint(Sketcher.Constraint("Tangent", 8, 1, 9, 1))
sketch15.addConstraint(Sketcher.Constraint("Coincident", 9, 2, 10, 1))
sketch15.addConstraint(Sketcher.Constraint("Coincident", 10, 2, 11, 1))
sketch15.addConstraint(Sketcher.Constraint("Coincident", 11, 2, 12, 1))
sketch15.addConstraint(Sketcher.Constraint("Coincident", 12, 2, 13, 1))
sketch15.addConstraint(Sketcher.Constraint("Coincident", 13, 2, 14, 1))
sketch15.addConstraint(Sketcher.Constraint("Coincident", 14, 2, 6, 1))
sketch15.addConstraint(Sketcher.Constraint("Horizontal", 0))
sketch15.addConstraint(Sketcher.Constraint("Horizontal", 2))
sketch15.addConstraint(Sketcher.Constraint("Vertical", 3))
sketch15.addConstraint(Sketcher.Constraint("Horizontal", 6))
sketch15.addConstraint(Sketcher.Constraint("Vertical", 7))
sketch15.addConstraint(Sketcher.Constraint("Horizontal", 9))
sketch15.addConstraint(Sketcher.Constraint("Horizontal", 11))
sketch15.addConstraint(Sketcher.Constraint("Vertical", 14))
sketch15.addConstraint(Sketcher.Constraint("Symmetric", 5, 2, 11, 2, -2))
sketch15.addConstraint(Sketcher.Constraint("Symmetric", 4, 2, 12, 2, -2))
sketch15.addConstraint(Sketcher.Constraint("Symmetric", 3, 2, 13, 2, -2))
sketch15.addConstraint(Sketcher.Constraint("Horizontal", 2, 2, 6, 2))
sketch15.addConstraint(Sketcher.Constraint("Radius", 8, 4.0))
sketch15.addConstraint(Sketcher.Constraint("DistanceX", 0, 2, 0, 1, 23.0))
sketch15.addConstraint(Sketcher.Constraint("DistanceX", 11, 2, 11, 1, 34.0))
sketch15.addConstraint(Sketcher.Constraint("DistanceY", 3, 1, 3, 2, 12.0))
sketch15.addConstraint(Sketcher.Constraint("DistanceX", 6, 1, 6, 2, 20.8))
sketch15.addConstraint(Sketcher.Constraint("DistanceY", 7, 1, 7, 2, 10.5))
sketch15.addConstraint(Sketcher.Constraint("DistanceY", -1, 1, 0, 2, 25.0))
sketch15.addConstraint(Sketcher.Constraint("DistanceY", -1, 1, 1, 2, 3.0))
sketch15.addConstraint(Sketcher.Constraint("DistanceY", -1, 1, 4, 2, 18.0))
sketch15.addConstraint(Sketcher.Constraint("DistanceX", 0, 2, 2, 2, 43.0))
sketch15.addConstraint(Sketcher.Constraint("DistanceX", 4, 2, 3, 2, 10.0))
sketch15.addConstraint(Sketcher.Constraint("DistanceX", 9, 1, 9, 2, 19.95))
sketch15.addConstraint(Sketcher.Constraint("DistanceX", 8, 3, -1, 1, 43.7))
sketch15.addConstraint(Sketcher.Constraint("DistanceX", 2, 1, 2, 2, 15.866667))
pocket13 = doc.addObject("PartDesign::Pocket", "Pocket012")
body.addObject(pocket13)
pocket13.Profile = sketch15
pocket13.Length = 6
doc.recompute()

mirrored = doc.addObject("PartDesign::Mirrored", "Mirrored")
body.addObject(mirrored)
mirrored.Originals = [pocket13]
mirrored.MirrorPlane = (doc.XY_Plane, [""])
body.Tip = mirrored

# Sketch on XZ plane
sketch16 = doc.addObject("Sketcher::SketchObject", "Sketch015")
body.addObject(sketch16)
sketch16.AttachmentSupport = (doc.XZ_Plane, [""])
sketch16.MapMode = "FlatFace"
sketch16.AttachmentOffset = App.Placement(Vector(0, 0, -3), App.Rotation())
add_polygon(sketch16, [(-56, -20), (-56, -14), (-48, -14), (-48, -20)])  # lines 0-3
add_polygon(sketch16, [(-56, 14), (-56, 20), (-48, 20), (-48, 14)])  # lines 4-7
add_polygon(sketch16, [(48, 14), (48, 20), (58, 20), (58, 14)])  # lines 8-11
add_polygon(sketch16, [(48, -20), (48, -14), (58, -14), (58, -20)])  # lines 12-15
sketch16.addConstraint(Sketcher.Constraint("Vertical", 0))
sketch16.addConstraint(Sketcher.Constraint("Horizontal", 1))
sketch16.addConstraint(Sketcher.Constraint("Vertical", 2))
sketch16.addConstraint(Sketcher.Constraint("Horizontal", 3))
sketch16.addConstraint(Sketcher.Constraint("Vertical", 4))
sketch16.addConstraint(Sketcher.Constraint("Horizontal", 5))
sketch16.addConstraint(Sketcher.Constraint("Vertical", 6))
sketch16.addConstraint(Sketcher.Constraint("Horizontal", 7))
sketch16.addConstraint(Sketcher.Constraint("Vertical", 8))
sketch16.addConstraint(Sketcher.Constraint("Horizontal", 9))
sketch16.addConstraint(Sketcher.Constraint("Vertical", 10))
sketch16.addConstraint(Sketcher.Constraint("Horizontal", 11))
sketch16.addConstraint(Sketcher.Constraint("Vertical", 12))
sketch16.addConstraint(Sketcher.Constraint("Horizontal", 13))
sketch16.addConstraint(Sketcher.Constraint("Vertical", 14))
sketch16.addConstraint(Sketcher.Constraint("Horizontal", 15))
sketch16.addConstraint(Sketcher.Constraint("Symmetric", 3, 2, 4, 2, -1))
sketch16.addConstraint(Sketcher.Constraint("Symmetric", 1, 2, 6, 2, -1))
sketch16.addConstraint(Sketcher.Constraint("Symmetric", 11, 2, 12, 2, -1))
sketch16.addConstraint(Sketcher.Constraint("Symmetric", 9, 2, 14, 2, -1))
sketch16.addConstraint(Sketcher.Constraint("Horizontal", 5, 2, 8, 2))
sketch16.addConstraint(Sketcher.Constraint("Horizontal", 7, 2, 10, 2))
sketch16.addConstraint(Sketcher.Constraint("DistanceX", 1, 1, 1, 2, 8.0))
sketch16.addConstraint(Sketcher.Constraint("DistanceX", 9, 1, 9, 2, 10.0))
sketch16.addConstraint(Sketcher.Constraint("DistanceY", 0, 1, 0, 2, 6.0))
sketch16.addConstraint(Sketcher.Constraint("DistanceY", 0, 2, -1, 1, 14.0))
sketch16.addConstraint(Sketcher.Constraint("DistanceX", 0, 2, -1, 1, 55.7))
sketch16.addConstraint(Sketcher.Constraint("DistanceX", -1, 1, 8, 2, 48.5))
pad3 = doc.addObject("PartDesign::Pad", "Pad002")
body.addObject(pad3)
pad3.Profile = sketch16
pad3.Length = 3
pad3.Reversed = True

# Sketch on XZ plane
sketch17 = doc.addObject("Sketcher::SketchObject", "Sketch016")
body.addObject(sketch17)
sketch17.AttachmentSupport = (doc.XZ_Plane, [""])
sketch17.MapMode = "FlatFace"
sketch17.AttachmentOffset = App.Placement(Vector(0, 0, -6), App.Rotation())
sketch17.addGeometry(Part.Circle(Vector(54.5, 17, 0), Vector(0, 0, 1), 2), False)
sketch17.addGeometry(Part.Circle(Vector(54.5, -17, 0), Vector(0, 0, 1), 2), False)
sketch17.addGeometry(Part.Circle(Vector(-51.7, -17, 0), Vector(0, 0, 1), 2), False)
sketch17.addGeometry(Part.Circle(Vector(-51.7, 17, 0), Vector(0, 0, 1), 2), False)
sketch17.addConstraint(Sketcher.Constraint("Equal", 0, 1))
sketch17.addConstraint(Sketcher.Constraint("Equal", 1, 2))
sketch17.addConstraint(Sketcher.Constraint("Equal", 2, 3))
sketch17.addConstraint(Sketcher.Constraint("Symmetric", 0, 3, 1, 3, -1))
sketch17.addConstraint(Sketcher.Constraint("Symmetric", 2, 3, 3, 3, -1))
sketch17.addConstraint(Sketcher.Constraint("Horizontal", 1, 3, 2, 3))
sketch17.addConstraint(Sketcher.Constraint("Diameter", 0, 4.0))
sketch17.addConstraint(Sketcher.Constraint("DistanceY", -1, 1, 0, 3, 17.0))
sketch17.addConstraint(Sketcher.Constraint("DistanceX", -1, 1, 0, 3, 54.5))
sketch17.addConstraint(Sketcher.Constraint("DistanceX", 2, 3, -1, 1, 51.7))
pocket14 = doc.addObject("PartDesign::Pocket", "Pocket013")
body.addObject(pocket14)
pocket14.Profile = sketch17
pocket14.Length = 6
pocket14.Reversed = True

doc.recompute()
